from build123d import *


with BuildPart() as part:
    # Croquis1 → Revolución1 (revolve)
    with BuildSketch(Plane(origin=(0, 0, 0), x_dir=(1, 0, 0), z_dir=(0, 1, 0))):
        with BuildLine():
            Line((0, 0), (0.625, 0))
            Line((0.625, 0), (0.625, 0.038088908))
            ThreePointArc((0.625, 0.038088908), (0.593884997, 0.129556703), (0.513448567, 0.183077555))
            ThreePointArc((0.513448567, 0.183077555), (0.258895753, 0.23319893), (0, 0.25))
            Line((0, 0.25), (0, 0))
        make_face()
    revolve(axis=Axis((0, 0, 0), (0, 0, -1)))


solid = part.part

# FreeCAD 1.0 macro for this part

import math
import FreeCAD as App
import Part
import Sketcher
from FreeCAD import Vector
Q = App.Units.Quantity

doc = App.newDocument("Part")
body = doc.addObject("PartDesign::Body", "Body")

sketch1 = body.newObject("Sketcher::SketchObject", "Sketch")
sketch1.AttachmentSupport = (doc.getObject("XZ_Plane"), [""])
sketch1.MapMode = "FlatFace"
sketch1.addGeometry([
    Part.LineSegment(Vector(0, 0, 0), Vector(0.625, 0, 0)),
    Part.LineSegment(Vector(0.625, 0, 0), Vector(0.625, -0.038089, 0)),
    Part.ArcOfCircle(Part.Circle(Vector(0.475, -0.038089, 0), Vector(0, 0, 1), 0.15), math.radians(-75.147961), math.radians(0)),
    Part.ArcOfCircle(Part.Circle(Vector(0, 1.753125, 0), Vector(0, 0, 1), 2.003125), math.radians(-90), math.radians(-75.147961)),
    Part.LineSegment(Vector(0, -0.25, 0), Vector(0, 0, 0)),
], False)
sketch1.addConstraint([
    Sketcher.Constraint("Coincident", 0, 2, 1, 1),
    Sketcher.Constraint("Tangent", 1, 2, 2, 2),
    Sketcher.Constraint("Tangent", 2, 1, 3, 2),
    Sketcher.Constraint("Coincident", 3, 1, 4, 1),
    Sketcher.Constraint("Coincident", 4, 2, 0, 1),
    Sketcher.Constraint("Horizontal", 0),
    Sketcher.Constraint("Vertical", 1),
    Sketcher.Constraint("Vertical", 4),
    Sketcher.Constraint("Coincident", 4, 2, -1, 1),
    Sketcher.Constraint("PointOnObject", 3, 3, -2),
    Sketcher.Constraint("Radius", 2, Q("0.15 mm")),
    Sketcher.Constraint("DistanceY", 4, 1, 4, 2, Q("0.25 mm")),
    Sketcher.Constraint("DistanceX", 0, 1, 0, 2, Q("0.625 mm")),
    Sketcher.Constraint("Radius", 3, Q("2.003125 mm")),
])
revolution = body.newObject("PartDesign::Revolution", "Revolution")
revolution.Profile = sketch1
revolution.ReferenceAxis = (sketch1, ["V_Axis"])
revolution.Angle = 360

doc.recompute()
